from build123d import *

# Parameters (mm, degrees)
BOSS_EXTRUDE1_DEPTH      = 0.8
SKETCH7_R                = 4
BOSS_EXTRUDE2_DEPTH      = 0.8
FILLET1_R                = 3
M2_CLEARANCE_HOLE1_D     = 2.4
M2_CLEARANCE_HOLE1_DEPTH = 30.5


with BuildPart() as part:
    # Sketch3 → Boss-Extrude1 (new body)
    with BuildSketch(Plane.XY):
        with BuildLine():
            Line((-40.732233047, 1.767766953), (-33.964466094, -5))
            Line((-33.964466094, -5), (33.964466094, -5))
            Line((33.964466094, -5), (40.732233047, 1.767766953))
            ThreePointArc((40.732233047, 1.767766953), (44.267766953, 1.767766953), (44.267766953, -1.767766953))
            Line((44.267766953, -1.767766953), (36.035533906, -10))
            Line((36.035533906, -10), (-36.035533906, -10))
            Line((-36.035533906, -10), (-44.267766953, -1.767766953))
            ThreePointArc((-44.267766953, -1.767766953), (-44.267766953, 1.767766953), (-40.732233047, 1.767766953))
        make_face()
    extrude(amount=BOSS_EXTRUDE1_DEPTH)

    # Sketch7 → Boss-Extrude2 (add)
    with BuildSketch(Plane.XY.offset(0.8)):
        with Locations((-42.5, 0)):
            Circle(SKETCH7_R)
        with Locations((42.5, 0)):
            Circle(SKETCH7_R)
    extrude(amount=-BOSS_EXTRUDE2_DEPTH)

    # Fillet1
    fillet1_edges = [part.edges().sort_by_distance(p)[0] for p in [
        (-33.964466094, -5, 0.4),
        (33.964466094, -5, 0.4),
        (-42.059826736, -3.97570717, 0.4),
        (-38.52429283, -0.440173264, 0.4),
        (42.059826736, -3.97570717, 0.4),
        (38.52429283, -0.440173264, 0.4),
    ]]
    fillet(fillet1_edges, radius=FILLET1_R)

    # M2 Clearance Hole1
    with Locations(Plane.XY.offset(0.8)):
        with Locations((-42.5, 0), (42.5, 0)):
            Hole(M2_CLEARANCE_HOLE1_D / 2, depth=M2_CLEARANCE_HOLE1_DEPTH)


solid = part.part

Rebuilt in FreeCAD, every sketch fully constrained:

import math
import FreeCAD as App
import Part
import Sketcher

V = App.Vector


def edges_at(feature, points):
    """Names of the edges that pass closest to the given points."""
    edges = feature.Shape.Edges
    near = lambda p: min(range(len(edges)), key=lambda i: edges[i].distToShape(Part.Vertex(*p))[0])
    return sorted({f"Edge{near(p) + 1}" for p in points})

doc = App.newDocument("Part")
body = doc.addObject("PartDesign::Body", "Body")

sketch1 = body.newObject("Sketcher::SketchObject", "Sketch")
sketch1.AttachmentSupport = (doc.getObject("XY_Plane"), [""])
sketch1.MapMode = "FlatFace"
sketch1.addGeometry([
    Part.LineSegment(V(-34, -5, 0), V(-40.7, 1.8, 0)),
    Part.ArcOfCircle(Part.Circle(V(-42.5, 0, 0), V(0, 0, 1), 2.5), math.radians(45), math.radians(225)),
    Part.LineSegment(V(-44.3, -1.8, 0), V(-36, -10, 0)),
    Part.LineSegment(V(-36, -10, 0), V(36, -10, 0)),
    Part.LineSegment(V(36, -10, 0), V(44.3, -1.8, 0)),
    Part.ArcOfCircle(Part.Circle(V(42.5, 0, 0), V(0, 0, 1), 2.5), math.radians(-45), math.radians(135)),
    Part.LineSegment(V(40.7, 1.8, 0), V(34, -5, 0)),
    Part.LineSegment(V(34, -5, 0), V(-34, -5, 0)),
], False)
sketch1.addConstraint([
    Sketcher.Constraint("Tangent", 0, 2, 1, 1),
    Sketcher.Constraint("Tangent", 1, 2, 2, 1),
    Sketcher.Constraint("Coincident", 2, 2, 3, 1),
    Sketcher.Constraint("Coincident", 3, 2, 4, 1),
    Sketcher.Constraint("Tangent", 4, 2, 5, 1),
    Sketcher.Constraint("Tangent", 5, 2, 6, 1),
    Sketcher.Constraint("Coincident", 6, 2, 7, 1),
    Sketcher.Constraint("Coincident", 7, 2, 0, 1),
    Sketcher.Constraint("Horizontal", 3),
    Sketcher.Constraint("Horizontal", 7),
    Sketcher.Constraint("Equal", 1, 5),
    Sketcher.Constraint("Symmetric", 1, 3, 5, 3, -1, 1),
    Sketcher.Constraint("Symmetric", 1, 2, 4, 2, -2),
    Sketcher.Constraint("Parallel", 0, 2),
    Sketcher.Constraint("Perpendicular", 2, 4),
    Sketcher.Constraint("Parallel", 4, 6),
    Sketcher.Constraint("Radius", 1, 2.5),
    Sketcher.Constraint("DistanceY", 2, 2, -1, 1, 10.0),
    Sketcher.Constraint("DistanceY", 6, 2, -1, 1, 5.0),
    Sketcher.Constraint("DistanceX", 1, 3, 5, 3, 85.0),
])
pad1 = body.newObject("PartDesign::Pad", "Pad")
pad1.Profile = sketch1
pad1.Length = 0.8

sketch2 = body.newObject("Sketcher::SketchObject", "Sketch001")
sketch2.AttachmentSupport = (doc.getObject("XY_Plane"), [""])
sketch2.MapMode = "FlatFace"
sketch2.AttachmentOffset = App.Placement(V(0, 0, 0.8), App.Rotation())
sketch2.addGeometry([
    Part.Circle(V(-42.5, 0, 0), V(0, 0, 1), 4),
    Part.Circle(V(42.5, 0, 0), V(0, 0, 1), 4),
], False)
sketch2.addConstraint([
    Sketcher.Constraint("Equal", 0, 1),
    Sketcher.Constraint("Symmetric", 0, 3, 1, 3, -1, 1),
    Sketcher.Constraint("PointOnObject", 0, 3, -1),
    Sketcher.Constraint("Diameter", 0, 8.0),
    Sketcher.Constraint("DistanceX", 0, 3, 1, 3, 85.0),
])
pad2 = body.newObject("PartDesign::Pad", "Pad001")
pad2.Profile = sketch2
pad2.Length = 0.8
pad2.Reversed = True
doc.recompute()

fillet = body.newObject("PartDesign::Fillet", "Fillet")
fillet.Base = (pad2, edges_at(pad2, [
    (-33.964, -5, 0.4),
    (33.964, -5, 0.4),
    (-42.06, -3.976, 0.4),
    (-38.524, -0.44, 0.4),
    (42.06, -3.976, 0.4),
    (38.524, -0.44, 0.4),
]))
fillet.Radius = 3

sketch3 = body.newObject("Sketcher::SketchObject", "Sketch002")
sketch3.AttachmentSupport = (doc.getObject("XY_Plane"), [""])
sketch3.MapMode = "FlatFace"
sketch3.AttachmentOffset = App.Placement(V(0, 0, 0.8), App.Rotation())
sketch3.addGeometry([
    Part.Circle(V(-42.5, 0, 0), V(0, 0, 1), 1.2),
    Part.Circle(V(42.5, 0, 0), V(0, 0, 1), 1.2),
], False)
sketch3.addConstraint([
    Sketcher.Constraint("Equal", 0, 1),
    Sketcher.Constraint("Symmetric", 0, 3, 1, 3, -1, 1),
    Sketcher.Constraint("PointOnObject", 0, 3, -1),
    Sketcher.Constraint("Diameter", 0, 2.4),
    Sketcher.Constraint("DistanceX", 0, 3, 1, 3, 85.0),
])
doc.recompute()
hole = body.newObject("PartDesign::Hole", "Hole")
hole.Profile = sketch3
hole.ThreadType = "None"
hole.Diameter = 2.4
hole.DepthType = "Dimension"
hole.Depth = 30.5
hole.DrillPoint = "Flat"

doc.recompute()
